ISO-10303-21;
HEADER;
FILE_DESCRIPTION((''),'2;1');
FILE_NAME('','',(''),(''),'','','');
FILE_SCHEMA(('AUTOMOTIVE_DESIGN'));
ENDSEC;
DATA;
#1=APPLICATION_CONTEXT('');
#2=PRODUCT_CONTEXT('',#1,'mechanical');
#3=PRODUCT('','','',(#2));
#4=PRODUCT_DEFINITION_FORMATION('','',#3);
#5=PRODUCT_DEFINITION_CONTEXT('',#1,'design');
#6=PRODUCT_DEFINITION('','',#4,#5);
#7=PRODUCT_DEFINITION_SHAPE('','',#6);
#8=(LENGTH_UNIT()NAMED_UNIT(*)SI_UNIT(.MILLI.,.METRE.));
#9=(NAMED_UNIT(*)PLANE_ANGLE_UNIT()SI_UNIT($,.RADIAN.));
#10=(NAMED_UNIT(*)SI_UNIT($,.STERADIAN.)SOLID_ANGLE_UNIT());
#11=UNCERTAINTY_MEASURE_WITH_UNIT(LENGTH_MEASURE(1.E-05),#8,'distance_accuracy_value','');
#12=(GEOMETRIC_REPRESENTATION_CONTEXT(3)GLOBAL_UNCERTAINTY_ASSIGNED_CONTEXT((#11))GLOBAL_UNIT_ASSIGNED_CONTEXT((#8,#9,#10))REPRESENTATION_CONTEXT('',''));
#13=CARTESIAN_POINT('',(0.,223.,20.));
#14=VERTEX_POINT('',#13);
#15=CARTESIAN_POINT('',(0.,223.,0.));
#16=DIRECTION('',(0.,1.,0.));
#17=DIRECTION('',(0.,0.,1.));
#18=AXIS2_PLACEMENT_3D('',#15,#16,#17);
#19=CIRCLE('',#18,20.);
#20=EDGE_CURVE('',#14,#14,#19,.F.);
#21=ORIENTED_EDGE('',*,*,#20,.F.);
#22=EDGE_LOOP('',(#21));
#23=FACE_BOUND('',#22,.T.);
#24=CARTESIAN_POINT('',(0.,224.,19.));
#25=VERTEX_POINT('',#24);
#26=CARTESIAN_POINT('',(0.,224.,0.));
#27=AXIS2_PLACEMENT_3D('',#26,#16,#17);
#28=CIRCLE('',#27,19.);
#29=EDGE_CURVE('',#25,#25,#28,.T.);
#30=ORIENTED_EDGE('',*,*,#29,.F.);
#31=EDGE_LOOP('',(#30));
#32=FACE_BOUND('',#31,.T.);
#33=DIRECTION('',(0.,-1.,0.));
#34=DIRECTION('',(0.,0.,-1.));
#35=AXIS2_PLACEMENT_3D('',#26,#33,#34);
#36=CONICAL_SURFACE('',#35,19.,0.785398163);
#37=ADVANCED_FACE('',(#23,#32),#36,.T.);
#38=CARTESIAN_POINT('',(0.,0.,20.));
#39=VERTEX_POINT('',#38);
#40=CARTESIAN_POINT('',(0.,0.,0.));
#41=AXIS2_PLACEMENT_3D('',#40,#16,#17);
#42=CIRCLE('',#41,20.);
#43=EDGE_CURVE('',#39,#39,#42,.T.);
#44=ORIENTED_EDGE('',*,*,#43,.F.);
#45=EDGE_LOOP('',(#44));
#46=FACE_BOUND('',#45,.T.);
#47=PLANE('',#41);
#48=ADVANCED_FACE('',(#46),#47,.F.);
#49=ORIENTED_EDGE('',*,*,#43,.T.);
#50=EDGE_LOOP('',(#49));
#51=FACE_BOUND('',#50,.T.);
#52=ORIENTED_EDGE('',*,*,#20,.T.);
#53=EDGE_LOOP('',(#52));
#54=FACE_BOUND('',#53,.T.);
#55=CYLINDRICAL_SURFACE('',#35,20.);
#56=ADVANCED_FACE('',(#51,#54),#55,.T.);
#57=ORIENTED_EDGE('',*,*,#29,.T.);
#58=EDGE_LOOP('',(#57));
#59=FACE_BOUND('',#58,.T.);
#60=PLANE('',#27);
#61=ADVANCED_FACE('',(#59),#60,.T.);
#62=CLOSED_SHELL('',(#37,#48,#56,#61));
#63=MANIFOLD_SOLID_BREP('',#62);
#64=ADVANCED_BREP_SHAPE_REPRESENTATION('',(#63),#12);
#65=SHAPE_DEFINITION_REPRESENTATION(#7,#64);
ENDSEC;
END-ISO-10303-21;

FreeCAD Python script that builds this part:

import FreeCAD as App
import Part
import Sketcher


def edges_at(feature, points):
    """Names of the edges that pass closest to the given points."""
    edges = feature.Shape.Edges
    near = lambda p: min(range(len(edges)), key=lambda i: edges[i].distToShape(Part.Vertex(*p))[0])
    return sorted({f"Edge{near(p) + 1}" for p in points})

doc = App.newDocument("Part")
body = doc.addObject("PartDesign::Body", "Body")

# Sketch on XZ plane
sketch1 = doc.addObject("Sketcher::SketchObject", "Sketch")
body.addObject(sketch1)
sketch1.AttachmentSupport = (doc.XZ_Plane, [""])
sketch1.MapMode = "FlatFace"
sketch1.addGeometry(Part.Circle(App.Vector(0, 0, 0), App.Vector(0, 0, 1), 20), False)
sketch1.addConstraint(Sketcher.Constraint("Coincident", 0, 3, -1, 1))
sketch1.addConstraint(Sketcher.Constraint("Diameter", 0, 40.0))
pad1 = doc.addObject("PartDesign::Pad", "Pad")
body.addObject(pad1)
pad1.Profile = sketch1
pad1.Length = 224
pad1.Reversed = True
doc.recompute()

chamfer = doc.addObject("PartDesign::Chamfer", "Chamfer")
body.addObject(chamfer)
chamfer.Base = (pad1, edges_at(pad1, [(-20, 224, 0)]))
chamfer.Size = 1

doc.recompute()
